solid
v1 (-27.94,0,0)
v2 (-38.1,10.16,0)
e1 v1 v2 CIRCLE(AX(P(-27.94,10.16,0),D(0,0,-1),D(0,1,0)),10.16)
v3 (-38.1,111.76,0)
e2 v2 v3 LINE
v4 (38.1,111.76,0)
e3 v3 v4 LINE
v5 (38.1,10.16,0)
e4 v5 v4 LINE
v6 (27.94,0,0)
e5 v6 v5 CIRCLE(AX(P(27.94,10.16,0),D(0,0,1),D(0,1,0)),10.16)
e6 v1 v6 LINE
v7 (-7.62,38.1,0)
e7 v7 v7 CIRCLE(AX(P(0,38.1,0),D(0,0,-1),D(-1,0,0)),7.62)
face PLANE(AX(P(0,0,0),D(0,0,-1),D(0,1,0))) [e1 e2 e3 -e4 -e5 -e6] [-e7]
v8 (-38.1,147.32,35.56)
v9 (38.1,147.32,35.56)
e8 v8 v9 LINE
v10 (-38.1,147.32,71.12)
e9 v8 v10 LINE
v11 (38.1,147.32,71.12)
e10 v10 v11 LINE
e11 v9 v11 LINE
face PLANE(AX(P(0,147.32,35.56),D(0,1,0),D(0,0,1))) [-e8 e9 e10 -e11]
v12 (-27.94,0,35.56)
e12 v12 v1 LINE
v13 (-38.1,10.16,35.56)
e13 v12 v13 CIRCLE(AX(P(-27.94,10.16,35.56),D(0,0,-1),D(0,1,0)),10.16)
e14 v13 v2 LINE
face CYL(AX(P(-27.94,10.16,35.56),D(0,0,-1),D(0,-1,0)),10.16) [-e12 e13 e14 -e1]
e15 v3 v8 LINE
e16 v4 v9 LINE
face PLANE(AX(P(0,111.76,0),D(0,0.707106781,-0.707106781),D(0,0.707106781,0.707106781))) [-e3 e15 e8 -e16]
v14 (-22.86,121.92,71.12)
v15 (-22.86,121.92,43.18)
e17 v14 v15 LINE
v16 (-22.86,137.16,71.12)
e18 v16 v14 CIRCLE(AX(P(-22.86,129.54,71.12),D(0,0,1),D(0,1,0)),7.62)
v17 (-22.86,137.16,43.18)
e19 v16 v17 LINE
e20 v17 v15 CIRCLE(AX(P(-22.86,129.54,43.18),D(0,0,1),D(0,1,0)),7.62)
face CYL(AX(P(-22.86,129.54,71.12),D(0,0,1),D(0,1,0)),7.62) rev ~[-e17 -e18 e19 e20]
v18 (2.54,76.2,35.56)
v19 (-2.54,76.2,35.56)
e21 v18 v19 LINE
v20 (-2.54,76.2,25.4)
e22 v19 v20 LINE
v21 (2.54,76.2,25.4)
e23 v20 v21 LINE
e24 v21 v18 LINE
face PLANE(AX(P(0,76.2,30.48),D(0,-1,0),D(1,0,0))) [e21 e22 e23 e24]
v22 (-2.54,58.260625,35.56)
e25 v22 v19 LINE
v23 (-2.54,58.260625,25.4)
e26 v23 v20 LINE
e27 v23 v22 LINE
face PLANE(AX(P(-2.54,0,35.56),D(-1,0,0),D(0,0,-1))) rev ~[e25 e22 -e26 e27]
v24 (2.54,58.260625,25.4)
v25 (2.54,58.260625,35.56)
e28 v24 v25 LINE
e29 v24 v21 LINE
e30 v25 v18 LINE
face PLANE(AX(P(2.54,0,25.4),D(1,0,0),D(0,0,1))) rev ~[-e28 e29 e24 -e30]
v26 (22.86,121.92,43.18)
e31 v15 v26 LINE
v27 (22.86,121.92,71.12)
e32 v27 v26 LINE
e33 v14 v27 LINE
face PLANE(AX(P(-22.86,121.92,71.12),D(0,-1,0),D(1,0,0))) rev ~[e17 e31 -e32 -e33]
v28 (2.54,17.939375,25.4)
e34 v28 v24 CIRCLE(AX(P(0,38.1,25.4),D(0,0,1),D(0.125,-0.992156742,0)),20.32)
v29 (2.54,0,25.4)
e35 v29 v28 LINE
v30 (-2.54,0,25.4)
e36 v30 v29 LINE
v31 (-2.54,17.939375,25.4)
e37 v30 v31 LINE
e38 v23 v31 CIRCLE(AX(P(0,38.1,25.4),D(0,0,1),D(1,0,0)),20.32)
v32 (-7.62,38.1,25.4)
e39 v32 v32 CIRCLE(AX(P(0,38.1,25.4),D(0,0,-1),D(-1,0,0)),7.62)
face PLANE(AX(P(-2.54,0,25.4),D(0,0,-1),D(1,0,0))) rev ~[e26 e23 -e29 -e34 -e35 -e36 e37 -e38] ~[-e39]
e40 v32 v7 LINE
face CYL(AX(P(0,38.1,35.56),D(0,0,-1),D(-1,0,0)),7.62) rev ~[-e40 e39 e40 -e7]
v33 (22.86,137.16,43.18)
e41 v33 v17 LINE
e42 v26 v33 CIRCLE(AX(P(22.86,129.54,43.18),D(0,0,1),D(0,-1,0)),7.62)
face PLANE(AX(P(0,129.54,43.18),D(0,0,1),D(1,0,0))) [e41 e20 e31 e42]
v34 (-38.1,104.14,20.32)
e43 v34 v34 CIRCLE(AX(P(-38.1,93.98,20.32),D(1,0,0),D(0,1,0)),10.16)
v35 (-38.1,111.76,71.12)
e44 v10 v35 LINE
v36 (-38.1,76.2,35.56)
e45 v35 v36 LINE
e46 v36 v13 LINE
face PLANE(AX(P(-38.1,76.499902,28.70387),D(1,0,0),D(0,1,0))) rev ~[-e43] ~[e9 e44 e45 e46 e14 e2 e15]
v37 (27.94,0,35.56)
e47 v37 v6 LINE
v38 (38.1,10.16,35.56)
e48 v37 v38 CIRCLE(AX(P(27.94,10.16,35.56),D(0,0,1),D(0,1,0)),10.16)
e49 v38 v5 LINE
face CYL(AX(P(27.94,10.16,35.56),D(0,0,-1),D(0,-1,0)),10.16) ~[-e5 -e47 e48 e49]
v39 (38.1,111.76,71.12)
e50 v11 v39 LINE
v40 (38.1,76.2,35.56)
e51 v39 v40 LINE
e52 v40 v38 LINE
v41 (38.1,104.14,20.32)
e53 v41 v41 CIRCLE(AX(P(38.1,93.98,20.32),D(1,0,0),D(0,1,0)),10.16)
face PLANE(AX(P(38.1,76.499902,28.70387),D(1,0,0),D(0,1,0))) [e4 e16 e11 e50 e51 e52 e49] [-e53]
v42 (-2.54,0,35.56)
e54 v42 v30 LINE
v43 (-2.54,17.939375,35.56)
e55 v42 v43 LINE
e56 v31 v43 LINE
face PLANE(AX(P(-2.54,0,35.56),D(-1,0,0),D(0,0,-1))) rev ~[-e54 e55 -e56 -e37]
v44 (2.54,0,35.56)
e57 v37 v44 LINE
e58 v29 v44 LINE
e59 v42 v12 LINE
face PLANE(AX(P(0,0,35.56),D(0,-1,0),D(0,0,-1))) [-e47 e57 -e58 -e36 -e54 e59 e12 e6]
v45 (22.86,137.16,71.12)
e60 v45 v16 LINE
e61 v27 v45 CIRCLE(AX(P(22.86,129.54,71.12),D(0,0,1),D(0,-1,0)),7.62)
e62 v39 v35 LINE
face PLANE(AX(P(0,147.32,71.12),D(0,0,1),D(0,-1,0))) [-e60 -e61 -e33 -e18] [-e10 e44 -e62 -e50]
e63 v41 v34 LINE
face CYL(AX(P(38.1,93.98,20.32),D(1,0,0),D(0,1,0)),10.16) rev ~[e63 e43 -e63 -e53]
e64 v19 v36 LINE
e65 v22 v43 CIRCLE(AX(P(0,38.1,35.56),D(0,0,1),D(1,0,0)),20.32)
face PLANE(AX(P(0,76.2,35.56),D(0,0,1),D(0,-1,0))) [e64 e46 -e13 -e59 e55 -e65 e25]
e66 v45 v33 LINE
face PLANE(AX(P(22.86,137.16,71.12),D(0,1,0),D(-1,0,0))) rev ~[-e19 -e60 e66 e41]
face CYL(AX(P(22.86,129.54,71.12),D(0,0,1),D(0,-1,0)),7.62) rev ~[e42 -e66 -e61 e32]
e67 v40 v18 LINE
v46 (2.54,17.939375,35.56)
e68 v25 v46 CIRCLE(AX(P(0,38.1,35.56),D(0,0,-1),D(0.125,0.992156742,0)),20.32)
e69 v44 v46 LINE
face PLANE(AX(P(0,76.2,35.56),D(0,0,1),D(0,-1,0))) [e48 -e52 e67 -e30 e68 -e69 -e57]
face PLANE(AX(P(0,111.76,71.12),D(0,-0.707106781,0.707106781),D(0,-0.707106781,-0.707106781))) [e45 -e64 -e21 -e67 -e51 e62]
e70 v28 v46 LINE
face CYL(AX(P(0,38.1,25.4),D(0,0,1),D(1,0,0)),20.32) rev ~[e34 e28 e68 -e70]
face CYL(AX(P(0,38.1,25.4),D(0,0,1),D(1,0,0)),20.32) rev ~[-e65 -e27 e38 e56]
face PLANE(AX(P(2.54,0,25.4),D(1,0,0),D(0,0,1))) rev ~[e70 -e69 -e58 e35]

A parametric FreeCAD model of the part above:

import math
import FreeCAD as App
import Part
import Sketcher
Q = App.Units.Quantity


def edges_at(feature, points):
    """Names of the edges that pass closest to the given points."""
    edges = feature.Shape.Edges
    near = lambda p: min(range(len(edges)), key=lambda i: edges[i].distToShape(Part.Vertex(*p))[0])
    return sorted({f"Edge{near(p) + 1}" for p in points})

doc = App.newDocument("Part")
body = doc.addObject("PartDesign::Body", "Body")

# Sketch on YZ plane
sketch1 = body.newObject("Sketcher::SketchObject", "Sketch")
sketch1.AttachmentSupport = (doc.getObject("YZ_Plane"), [""])
sketch1.MapMode = "FlatFace"
sketch1.addGeometry([
    Part.LineSegment(App.Vector(0, 36, 0), App.Vector(0, 0, 0)),  # 0
    Part.LineSegment(App.Vector(0, 0, 0), App.Vector(112, 0, 0)),  # 1
    Part.LineSegment(App.Vector(112, 0, 0), App.Vector(147, 36, 0)),  # 2
    Part.LineSegment(App.Vector(147, 36, 0), App.Vector(147, 71, 0)),  # 3
    Part.LineSegment(App.Vector(147, 71, 0), App.Vector(112, 71, 0)),  # 4
    Part.LineSegment(App.Vector(112, 71, 0), App.Vector(76, 36, 0)),  # 5
    Part.LineSegment(App.Vector(76, 36, 0), App.Vector(0, 36, 0)),  # 6
], False)
sketch1.addConstraint([
    Sketcher.Constraint("Coincident", 0, 2, 1, 1),
    Sketcher.Constraint("Coincident", 1, 2, 2, 1),
    Sketcher.Constraint("Coincident", 2, 2, 3, 1),
    Sketcher.Constraint("Coincident", 3, 2, 4, 1),
    Sketcher.Constraint("Coincident", 4, 2, 5, 1),
    Sketcher.Constraint("Coincident", 5, 2, 6, 1),
    Sketcher.Constraint("Coincident", 6, 2, 0, 1),
    Sketcher.Constraint("Vertical", 0),
    Sketcher.Constraint("Horizontal", 1),
    Sketcher.Constraint("Vertical", 3),
    Sketcher.Constraint("Horizontal", 4),
    Sketcher.Constraint("Horizontal", 6),
    Sketcher.Constraint("Coincident", 0, 2, -1, 1),
    Sketcher.Constraint("Parallel", 2, 5),
    Sketcher.Constraint("Horizontal", 2, 2, 5, 2),
    Sketcher.Constraint("Vertical", 1, 2, 4, 2),
    Sketcher.Constraint("Equal", 4, 0),
    Sketcher.Constraint("Equal", 0, 3),
    Sketcher.Constraint("DistanceX", 6, 2, 6, 1, Q("3 in")),
    Sketcher.Constraint("DistanceX", 1, 1, 1, 2, Q("4.4 in")),
])
pad1 = body.newObject("PartDesign::Pad", "Pad")
pad1.Profile = sketch1
pad1.Length = Q("3 in")
pad1.Midplane = True

# Sketch on XY plane
sketch2 = body.newObject("Sketcher::SketchObject", "Sketch001")
sketch2.AttachmentSupport = (doc.getObject("XY_Plane"), [""])
sketch2.MapMode = "FlatFace"
sketch2.AttachmentOffset = App.Placement(App.Vector(0, 0, 1.4 * 25.4), App.Rotation())
sketch2.addGeometry(Part.Circle(App.Vector(0, 38, 0), App.Vector(0, 0, 1), 8), False)
sketch2.addConstraint([
    Sketcher.Constraint("PointOnObject", 0, 3, -2),
    Sketcher.Constraint("Diameter", 0, Q("0.6 in")),
    Sketcher.Constraint("DistanceY", -1, 1, 0, 3, Q("1.5 in")),
])
doc.recompute()
hole = body.newObject("PartDesign::Hole", "Hole")
hole.Profile = sketch2
hole.ThreadType = "None"
hole.Diameter = Q("0.6 in")
hole.DepthType = "ThroughAll"
hole.HoleCutType = "Counterbore"
hole.HoleCutDiameter = Q("1.6 in")
hole.HoleCutDepth = Q("0.4 in")

# Sketch on XZ plane
sketch3 = body.newObject("Sketcher::SketchObject", "Sketch002")
sketch3.AttachmentSupport = (doc.getObject("XZ_Plane"), [""])
sketch3.MapMode = "FlatFace"
sketch3.addGeometry([
    Part.LineSegment(App.Vector(3, 36, 0), App.Vector(-3, 36, 0)),
    Part.LineSegment(App.Vector(-3, 36, 0), App.Vector(-3, 25, 0)),
    Part.LineSegment(App.Vector(-3, 25, 0), App.Vector(3, 25, 0)),
    Part.LineSegment(App.Vector(3, 25, 0), App.Vector(3, 36, 0)),
], False)
sketch3.addConstraint([
    Sketcher.Constraint("Coincident", 0, 2, 1, 1),
    Sketcher.Constraint("Coincident", 1, 2, 2, 1),
    Sketcher.Constraint("Coincident", 2, 2, 3, 1),
    Sketcher.Constraint("Coincident", 3, 2, 0, 1),
    Sketcher.Constraint("Horizontal", 0),
    Sketcher.Constraint("Vertical", 1),
    Sketcher.Constraint("Horizontal", 2),
    Sketcher.Constraint("Vertical", 3),
    Sketcher.Constraint("DistanceX", 0, 2, 0, 1, Q("0.2 in")),
    Sketcher.Constraint("DistanceY", 1, 2, 1, 1, Q("0.4 in")),
    Sketcher.Constraint("DistanceY", -1, 1, 1, 2, Q("1 in")),
    Sketcher.Constraint("DistanceX", 0, 2, -1, 1, Q("0.1 in")),
])
pocket1 = body.newObject("PartDesign::Pocket", "Pocket")
pocket1.Profile = sketch3
pocket1.Length = Q("3 in")

# Sketch on YZ plane
sketch4 = body.newObject("Sketcher::SketchObject", "Sketch003")
sketch4.AttachmentSupport = (doc.getObject("YZ_Plane"), [""])
sketch4.MapMode = "FlatFace"
sketch4.AttachmentOffset = App.Placement(App.Vector(0, 0, 1.5 * 25.4), App.Rotation())
sketch4.addGeometry(Part.Circle(App.Vector(94, 20, 0), App.Vector(0, 0, 1), 10), False)
sketch4.addConstraint([
    Sketcher.Constraint("Diameter", 0, Q("0.8 in")),
    Sketcher.Constraint("DistanceX", -1, 1, 0, 3, Q("3.7 in")),
    Sketcher.Constraint("DistanceY", -1, 1, 0, 3, Q("0.8 in")),
])
pocket2 = body.newObject("PartDesign::Pocket", "Pocket001")
pocket2.Profile = sketch4
pocket2.Length = Q("3 in")

# Sketch on XY plane
sketch5 = body.newObject("Sketcher::SketchObject", "Sketch004")
sketch5.AttachmentSupport = (doc.getObject("XY_Plane"), [""])
sketch5.MapMode = "FlatFace"
sketch5.AttachmentOffset = App.Placement(App.Vector(0, 0, 2.8 * 25.4), App.Rotation())
sketch5.addGeometry([
    Part.LineSegment(App.Vector(23, 137, 0), App.Vector(-23, 137, 0)),
    Part.ArcOfCircle(Part.Circle(App.Vector(-23, 130, 0), App.Vector(0, 0, 1), 8), math.radians(90), math.radians(270)),
    Part.LineSegment(App.Vector(-23, 122, 0), App.Vector(23, 122, 0)),
    Part.ArcOfCircle(Part.Circle(App.Vector(23, 130, 0), App.Vector(0, 0, 1), 8), math.radians(-90), math.radians(90)),
], False)
sketch5.addConstraint([
    Sketcher.Constraint("Tangent", 0, 2, 1, 1),
    Sketcher.Constraint("Tangent", 1, 2, 2, 1),
    Sketcher.Constraint("Tangent", 2, 2, 3, 1),
    Sketcher.Constraint("Tangent", 3, 2, 0, 1),
    Sketcher.Constraint("Horizontal", 0),
    Sketcher.Constraint("Horizontal", 2),
    Sketcher.Constraint("Radius", 1, Q("0.3 in")),
    Sketcher.Constraint("DistanceX", 0, 2, 0, 1, Q("1.8 in")),
    Sketcher.Constraint("DistanceX", 1, 3, -1, 1, Q("0.9 in")),
    Sketcher.Constraint("DistanceY", -1, 1, 1, 3, Q("5.1 in")),
])
pocket3 = body.newObject("PartDesign::Pocket", "Pocket002")
pocket3.Profile = sketch5
pocket3.Length = Q("1.1 in")
doc.recompute()

fillet = body.newObject("PartDesign::Fillet", "Fillet")
fillet.Base = (pocket3, edges_at(pocket3, [(38.1, 0, 17.78), (-38.1, 0, 17.78)]))
fillet.Radius = Q("0.4 in")

doc.recompute()
